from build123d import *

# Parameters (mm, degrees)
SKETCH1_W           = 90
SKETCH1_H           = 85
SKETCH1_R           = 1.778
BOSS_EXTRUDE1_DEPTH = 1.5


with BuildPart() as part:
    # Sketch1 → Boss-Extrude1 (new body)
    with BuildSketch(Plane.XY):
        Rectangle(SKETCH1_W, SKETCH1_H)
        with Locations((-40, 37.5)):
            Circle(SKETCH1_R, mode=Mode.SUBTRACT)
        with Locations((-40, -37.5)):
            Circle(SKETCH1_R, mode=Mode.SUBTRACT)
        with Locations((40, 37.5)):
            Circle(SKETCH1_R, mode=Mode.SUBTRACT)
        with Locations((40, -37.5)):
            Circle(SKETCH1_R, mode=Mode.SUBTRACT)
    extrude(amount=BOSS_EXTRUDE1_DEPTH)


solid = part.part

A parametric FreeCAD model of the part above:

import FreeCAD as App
import Part
import Sketcher

V = App.Vector

doc = App.newDocument("Part")
body = doc.addObject("PartDesign::Body", "Body")

# Sketch on XY plane
sketch1 = body.newObject("Sketcher::SketchObject", "Sketch")
sketch1.AttachmentSupport = (doc.getObject("XY_Plane"), [""])
sketch1.MapMode = "FlatFace"
sketch1.addGeometry([
    Part.LineSegment(V(-45, 42.5, 0), V(-45, -42.5, 0)),  # 0
    Part.LineSegment(V(-45, -42.5, 0), V(45, -42.5, 0)),  # 1
    Part.LineSegment(V(45, -42.5, 0), V(45, 42.5, 0)),  # 2
    Part.LineSegment(V(45, 42.5, 0), V(-45, 42.5, 0)),  # 3
    Part.Circle(V(-40, -37.5, 0), V(0, 0, 1), 1.8),  # 4
    Part.Circle(V(40, -37.5, 0), V(0, 0, 1), 1.8),  # 5
    Part.Circle(V(-40, 37.5, 0), V(0, 0, 1), 1.8),  # 6
    Part.Circle(V(40, 37.5, 0), V(0, 0, 1), 1.8),  # 7
], False)
sketch1.addConstraint([
    Sketcher.Constraint("Coincident", 0, 2, 1, 1),
    Sketcher.Constraint("Coincident", 1, 2, 2, 1),
    Sketcher.Constraint("Coincident", 2, 2, 3, 1),
    Sketcher.Constraint("Coincident", 3, 2, 0, 1),
    Sketcher.Constraint("Vertical", 0),
    Sketcher.Constraint("Horizontal", 1),
    Sketcher.Constraint("Vertical", 2),
    Sketcher.Constraint("Horizontal", 3),
    Sketcher.Constraint("Equal", 4, 5),
    Sketcher.Constraint("Equal", 5, 6),
    Sketcher.Constraint("Equal", 6, 7),
    Sketcher.Constraint("Symmetric", 5, 3, 6, 3, -1, 1),
    Sketcher.Constraint("Symmetric", 4, 3, 7, 3, -1, 1),
    Sketcher.Constraint("Symmetric", 0, 2, 2, 2, -1, 1),
    Sketcher.Constraint("Symmetric", 4, 3, 5, 3, -2),
    Sketcher.Constraint("DistanceX", 1, 1, 1, 2, 90.0),
    Sketcher.Constraint("DistanceY", 0, 2, 0, 1, 85.0),
    Sketcher.Constraint("Diameter", 4, 3.556),
    Sketcher.Constraint("DistanceX", 4, 3, -1, 1, 40.0),
    Sketcher.Constraint("DistanceY", 4, 3, 6, 3, 75.0),
])
pad1 = body.newObject("PartDesign::Pad", "Pad")
pad1.Profile = sketch1
pad1.Length = 1.5

doc.recompute()
